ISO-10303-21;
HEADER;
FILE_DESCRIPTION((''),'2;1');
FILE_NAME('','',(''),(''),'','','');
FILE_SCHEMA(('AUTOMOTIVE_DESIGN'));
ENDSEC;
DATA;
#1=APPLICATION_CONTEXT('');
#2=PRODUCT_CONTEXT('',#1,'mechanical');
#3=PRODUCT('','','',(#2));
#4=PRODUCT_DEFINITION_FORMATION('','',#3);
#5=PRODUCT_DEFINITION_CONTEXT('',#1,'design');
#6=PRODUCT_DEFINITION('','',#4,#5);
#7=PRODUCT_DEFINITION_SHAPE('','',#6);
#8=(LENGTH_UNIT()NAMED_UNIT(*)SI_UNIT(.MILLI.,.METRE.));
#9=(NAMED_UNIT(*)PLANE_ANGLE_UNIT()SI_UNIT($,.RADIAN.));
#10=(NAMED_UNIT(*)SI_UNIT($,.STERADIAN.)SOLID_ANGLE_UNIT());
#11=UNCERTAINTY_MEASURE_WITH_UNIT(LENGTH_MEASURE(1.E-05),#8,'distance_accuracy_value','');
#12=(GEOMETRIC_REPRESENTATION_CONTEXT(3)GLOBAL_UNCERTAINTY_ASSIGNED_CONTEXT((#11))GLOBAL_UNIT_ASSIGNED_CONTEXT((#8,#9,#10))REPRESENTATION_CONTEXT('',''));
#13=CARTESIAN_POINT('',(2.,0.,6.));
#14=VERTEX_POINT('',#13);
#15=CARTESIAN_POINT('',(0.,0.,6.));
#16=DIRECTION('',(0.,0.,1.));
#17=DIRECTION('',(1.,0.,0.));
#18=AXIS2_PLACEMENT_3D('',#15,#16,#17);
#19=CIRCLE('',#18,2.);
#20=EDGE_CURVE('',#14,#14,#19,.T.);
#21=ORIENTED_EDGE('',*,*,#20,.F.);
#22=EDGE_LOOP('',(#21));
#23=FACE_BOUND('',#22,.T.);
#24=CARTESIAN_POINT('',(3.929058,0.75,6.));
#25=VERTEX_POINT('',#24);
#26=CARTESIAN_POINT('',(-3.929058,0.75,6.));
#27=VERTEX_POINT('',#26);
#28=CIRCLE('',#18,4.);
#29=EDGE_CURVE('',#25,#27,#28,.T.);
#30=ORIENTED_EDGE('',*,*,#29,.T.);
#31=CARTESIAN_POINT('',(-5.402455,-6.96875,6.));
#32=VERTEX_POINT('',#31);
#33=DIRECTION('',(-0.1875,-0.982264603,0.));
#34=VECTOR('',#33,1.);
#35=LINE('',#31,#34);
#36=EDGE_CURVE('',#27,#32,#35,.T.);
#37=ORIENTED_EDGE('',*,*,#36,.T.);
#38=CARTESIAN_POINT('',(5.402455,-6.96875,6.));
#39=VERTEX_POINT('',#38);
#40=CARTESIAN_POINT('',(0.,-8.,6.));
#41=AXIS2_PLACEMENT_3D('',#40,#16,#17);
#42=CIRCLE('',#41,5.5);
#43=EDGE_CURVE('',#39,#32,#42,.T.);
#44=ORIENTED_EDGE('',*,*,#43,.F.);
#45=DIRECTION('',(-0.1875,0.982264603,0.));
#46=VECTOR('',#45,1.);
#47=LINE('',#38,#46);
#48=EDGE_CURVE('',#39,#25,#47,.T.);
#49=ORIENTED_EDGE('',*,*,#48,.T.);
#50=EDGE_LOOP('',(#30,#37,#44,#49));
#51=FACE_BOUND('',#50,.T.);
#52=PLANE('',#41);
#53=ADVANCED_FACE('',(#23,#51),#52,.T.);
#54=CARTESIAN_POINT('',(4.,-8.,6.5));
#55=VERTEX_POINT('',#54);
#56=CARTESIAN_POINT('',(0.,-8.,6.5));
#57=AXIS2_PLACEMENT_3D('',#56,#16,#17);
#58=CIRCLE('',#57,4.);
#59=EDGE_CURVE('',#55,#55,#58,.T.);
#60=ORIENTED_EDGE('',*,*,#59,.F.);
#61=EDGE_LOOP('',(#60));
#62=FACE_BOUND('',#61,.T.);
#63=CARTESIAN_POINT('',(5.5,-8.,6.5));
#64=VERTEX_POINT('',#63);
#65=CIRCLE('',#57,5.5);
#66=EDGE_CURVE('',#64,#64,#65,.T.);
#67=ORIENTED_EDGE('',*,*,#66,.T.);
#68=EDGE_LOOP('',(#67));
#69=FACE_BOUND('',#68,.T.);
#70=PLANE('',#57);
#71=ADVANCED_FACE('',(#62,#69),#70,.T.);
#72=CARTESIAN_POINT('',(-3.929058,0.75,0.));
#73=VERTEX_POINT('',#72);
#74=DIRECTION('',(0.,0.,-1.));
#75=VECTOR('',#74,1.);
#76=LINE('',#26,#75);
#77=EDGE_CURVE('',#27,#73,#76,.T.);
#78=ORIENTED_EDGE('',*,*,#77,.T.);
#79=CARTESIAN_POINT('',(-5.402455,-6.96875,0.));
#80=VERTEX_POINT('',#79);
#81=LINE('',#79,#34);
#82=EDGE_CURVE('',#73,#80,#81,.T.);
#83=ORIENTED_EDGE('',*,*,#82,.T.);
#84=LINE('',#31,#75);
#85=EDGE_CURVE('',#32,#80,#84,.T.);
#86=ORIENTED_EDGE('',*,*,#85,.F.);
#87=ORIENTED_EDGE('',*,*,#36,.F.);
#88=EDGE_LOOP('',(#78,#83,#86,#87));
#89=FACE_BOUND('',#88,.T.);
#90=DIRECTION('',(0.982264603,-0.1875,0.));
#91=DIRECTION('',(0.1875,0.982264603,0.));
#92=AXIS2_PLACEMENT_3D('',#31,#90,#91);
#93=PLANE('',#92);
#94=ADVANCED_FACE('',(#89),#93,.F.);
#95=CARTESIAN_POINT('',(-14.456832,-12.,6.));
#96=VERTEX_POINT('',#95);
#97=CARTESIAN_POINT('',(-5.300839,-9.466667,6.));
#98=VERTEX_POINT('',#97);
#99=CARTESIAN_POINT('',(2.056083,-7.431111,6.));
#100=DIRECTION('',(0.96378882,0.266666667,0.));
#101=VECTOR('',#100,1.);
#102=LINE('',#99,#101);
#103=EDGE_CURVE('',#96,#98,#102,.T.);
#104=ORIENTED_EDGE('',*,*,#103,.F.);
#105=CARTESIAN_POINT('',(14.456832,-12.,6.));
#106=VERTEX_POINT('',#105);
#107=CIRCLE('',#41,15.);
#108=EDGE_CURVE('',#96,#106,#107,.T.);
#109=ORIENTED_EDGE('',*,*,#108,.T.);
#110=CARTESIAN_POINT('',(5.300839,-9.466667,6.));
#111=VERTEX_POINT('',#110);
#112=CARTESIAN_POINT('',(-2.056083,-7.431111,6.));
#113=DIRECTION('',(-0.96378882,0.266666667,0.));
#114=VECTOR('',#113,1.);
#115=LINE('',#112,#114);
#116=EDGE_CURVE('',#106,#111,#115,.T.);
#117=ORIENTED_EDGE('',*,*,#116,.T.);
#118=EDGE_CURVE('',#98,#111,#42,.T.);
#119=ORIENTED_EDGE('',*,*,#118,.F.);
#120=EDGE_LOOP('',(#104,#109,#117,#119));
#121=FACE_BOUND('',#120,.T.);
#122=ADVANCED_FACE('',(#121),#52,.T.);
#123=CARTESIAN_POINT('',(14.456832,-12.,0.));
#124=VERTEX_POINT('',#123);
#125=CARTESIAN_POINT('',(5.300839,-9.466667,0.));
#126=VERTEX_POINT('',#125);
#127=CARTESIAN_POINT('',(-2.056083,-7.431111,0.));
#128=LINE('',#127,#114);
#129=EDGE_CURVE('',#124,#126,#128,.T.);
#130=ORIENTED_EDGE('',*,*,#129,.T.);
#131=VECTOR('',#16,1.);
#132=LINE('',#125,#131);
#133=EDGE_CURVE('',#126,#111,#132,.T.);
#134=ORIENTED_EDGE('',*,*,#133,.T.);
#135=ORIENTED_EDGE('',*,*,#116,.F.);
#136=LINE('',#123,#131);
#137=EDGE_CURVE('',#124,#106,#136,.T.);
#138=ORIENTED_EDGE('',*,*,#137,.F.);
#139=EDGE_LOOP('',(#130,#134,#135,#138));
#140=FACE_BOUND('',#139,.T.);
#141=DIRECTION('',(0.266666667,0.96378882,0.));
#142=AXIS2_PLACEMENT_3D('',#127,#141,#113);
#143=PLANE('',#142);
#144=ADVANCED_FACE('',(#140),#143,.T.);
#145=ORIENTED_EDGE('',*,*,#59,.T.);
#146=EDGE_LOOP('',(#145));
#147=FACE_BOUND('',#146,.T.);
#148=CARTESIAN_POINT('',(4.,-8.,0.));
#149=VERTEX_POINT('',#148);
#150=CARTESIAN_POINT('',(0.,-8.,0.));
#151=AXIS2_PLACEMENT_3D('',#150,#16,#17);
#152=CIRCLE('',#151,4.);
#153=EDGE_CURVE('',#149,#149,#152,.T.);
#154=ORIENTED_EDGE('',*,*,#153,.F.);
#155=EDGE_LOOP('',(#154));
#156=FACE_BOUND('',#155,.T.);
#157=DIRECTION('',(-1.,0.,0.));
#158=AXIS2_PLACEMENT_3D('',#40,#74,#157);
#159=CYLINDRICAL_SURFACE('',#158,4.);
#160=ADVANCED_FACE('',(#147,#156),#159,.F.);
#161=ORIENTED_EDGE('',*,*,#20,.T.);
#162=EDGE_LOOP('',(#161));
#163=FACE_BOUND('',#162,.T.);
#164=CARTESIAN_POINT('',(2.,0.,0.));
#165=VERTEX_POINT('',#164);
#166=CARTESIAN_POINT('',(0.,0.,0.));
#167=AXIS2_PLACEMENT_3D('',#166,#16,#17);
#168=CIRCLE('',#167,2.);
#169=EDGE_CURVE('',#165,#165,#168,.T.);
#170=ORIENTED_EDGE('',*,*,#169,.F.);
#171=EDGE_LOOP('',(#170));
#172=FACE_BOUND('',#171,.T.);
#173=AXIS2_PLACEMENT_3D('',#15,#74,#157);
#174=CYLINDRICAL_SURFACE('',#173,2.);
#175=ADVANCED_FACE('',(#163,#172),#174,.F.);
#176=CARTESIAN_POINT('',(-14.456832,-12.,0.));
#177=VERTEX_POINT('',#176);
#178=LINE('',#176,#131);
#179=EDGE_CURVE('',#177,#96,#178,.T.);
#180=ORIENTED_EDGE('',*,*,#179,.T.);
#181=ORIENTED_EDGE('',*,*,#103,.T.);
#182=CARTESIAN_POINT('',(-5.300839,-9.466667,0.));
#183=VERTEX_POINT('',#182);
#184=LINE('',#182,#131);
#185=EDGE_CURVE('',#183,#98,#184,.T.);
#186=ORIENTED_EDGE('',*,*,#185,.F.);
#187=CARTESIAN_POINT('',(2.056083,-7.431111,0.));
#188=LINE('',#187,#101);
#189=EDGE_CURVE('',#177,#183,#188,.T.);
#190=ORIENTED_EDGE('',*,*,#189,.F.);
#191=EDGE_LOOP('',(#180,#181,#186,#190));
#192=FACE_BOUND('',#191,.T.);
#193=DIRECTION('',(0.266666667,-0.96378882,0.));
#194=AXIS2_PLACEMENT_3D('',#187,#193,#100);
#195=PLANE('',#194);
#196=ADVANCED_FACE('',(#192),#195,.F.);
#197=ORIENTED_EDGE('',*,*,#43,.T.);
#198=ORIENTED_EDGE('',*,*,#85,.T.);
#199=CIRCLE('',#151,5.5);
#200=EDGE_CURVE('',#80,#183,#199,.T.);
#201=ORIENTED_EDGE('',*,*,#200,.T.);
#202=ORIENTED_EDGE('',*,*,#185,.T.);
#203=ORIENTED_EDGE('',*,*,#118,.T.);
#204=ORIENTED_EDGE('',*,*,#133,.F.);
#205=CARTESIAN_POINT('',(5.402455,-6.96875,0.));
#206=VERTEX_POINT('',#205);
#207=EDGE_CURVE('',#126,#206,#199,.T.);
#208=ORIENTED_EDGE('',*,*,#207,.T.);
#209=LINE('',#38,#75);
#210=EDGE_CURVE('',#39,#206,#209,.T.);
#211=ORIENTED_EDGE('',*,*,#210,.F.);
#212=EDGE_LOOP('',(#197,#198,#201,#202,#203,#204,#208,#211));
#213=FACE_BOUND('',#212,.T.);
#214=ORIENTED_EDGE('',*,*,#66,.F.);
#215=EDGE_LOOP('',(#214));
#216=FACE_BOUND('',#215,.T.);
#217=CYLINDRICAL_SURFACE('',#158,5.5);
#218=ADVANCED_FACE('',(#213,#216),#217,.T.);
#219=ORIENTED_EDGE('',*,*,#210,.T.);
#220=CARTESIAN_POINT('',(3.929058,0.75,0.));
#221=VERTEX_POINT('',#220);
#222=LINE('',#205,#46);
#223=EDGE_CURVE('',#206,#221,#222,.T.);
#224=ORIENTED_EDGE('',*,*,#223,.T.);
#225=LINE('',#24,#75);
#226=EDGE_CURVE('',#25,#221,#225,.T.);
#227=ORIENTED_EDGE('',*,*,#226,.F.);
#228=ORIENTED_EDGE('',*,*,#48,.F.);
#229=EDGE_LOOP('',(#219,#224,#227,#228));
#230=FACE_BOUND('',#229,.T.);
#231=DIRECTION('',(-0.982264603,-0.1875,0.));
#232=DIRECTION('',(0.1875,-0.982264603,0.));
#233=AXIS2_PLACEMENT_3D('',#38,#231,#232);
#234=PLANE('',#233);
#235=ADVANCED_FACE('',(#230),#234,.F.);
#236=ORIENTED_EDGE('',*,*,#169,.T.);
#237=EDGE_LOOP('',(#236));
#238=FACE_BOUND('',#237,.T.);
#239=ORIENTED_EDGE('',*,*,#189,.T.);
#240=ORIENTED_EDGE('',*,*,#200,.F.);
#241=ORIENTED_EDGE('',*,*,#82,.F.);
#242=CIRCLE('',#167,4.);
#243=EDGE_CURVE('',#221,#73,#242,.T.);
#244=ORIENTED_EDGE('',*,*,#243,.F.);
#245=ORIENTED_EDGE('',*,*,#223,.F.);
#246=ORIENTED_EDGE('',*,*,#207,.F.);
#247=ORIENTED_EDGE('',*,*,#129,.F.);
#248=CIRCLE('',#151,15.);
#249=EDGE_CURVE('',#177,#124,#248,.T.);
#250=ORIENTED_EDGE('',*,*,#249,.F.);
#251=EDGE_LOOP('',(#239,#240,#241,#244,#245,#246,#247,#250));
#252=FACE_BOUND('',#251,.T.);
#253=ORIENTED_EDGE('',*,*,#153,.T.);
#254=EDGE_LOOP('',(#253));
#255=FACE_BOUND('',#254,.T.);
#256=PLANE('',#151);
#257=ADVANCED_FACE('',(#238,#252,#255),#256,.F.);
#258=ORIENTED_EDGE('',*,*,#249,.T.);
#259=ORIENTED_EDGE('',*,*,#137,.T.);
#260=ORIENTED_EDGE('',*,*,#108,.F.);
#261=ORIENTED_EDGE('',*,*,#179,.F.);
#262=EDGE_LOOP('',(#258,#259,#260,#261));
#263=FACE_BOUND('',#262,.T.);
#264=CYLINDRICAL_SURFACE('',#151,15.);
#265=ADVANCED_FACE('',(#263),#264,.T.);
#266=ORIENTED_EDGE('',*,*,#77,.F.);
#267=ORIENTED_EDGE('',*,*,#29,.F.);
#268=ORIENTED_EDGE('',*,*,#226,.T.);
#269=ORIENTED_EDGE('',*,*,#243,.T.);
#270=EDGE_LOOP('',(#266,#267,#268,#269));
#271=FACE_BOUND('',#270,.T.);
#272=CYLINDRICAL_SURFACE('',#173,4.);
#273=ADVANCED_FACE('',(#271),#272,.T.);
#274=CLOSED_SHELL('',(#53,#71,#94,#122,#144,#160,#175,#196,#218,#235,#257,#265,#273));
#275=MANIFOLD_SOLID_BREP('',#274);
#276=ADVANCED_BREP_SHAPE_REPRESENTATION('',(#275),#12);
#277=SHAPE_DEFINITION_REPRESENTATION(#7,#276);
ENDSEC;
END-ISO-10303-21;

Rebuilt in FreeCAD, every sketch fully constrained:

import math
import FreeCAD as App
import Part
import Sketcher

V = App.Vector

doc = App.newDocument("Part")
body = doc.addObject("PartDesign::Body", "Body")

# Sketch on XY plane
sketch1 = doc.addObject("Sketcher::SketchObject", "Sketch")
body.addObject(sketch1)
sketch1.AttachmentSupport = (doc.XY_Plane, [""])
sketch1.MapMode = "FlatFace"
sketch1.addGeometry([
    Part.LineSegment(V(-3.929058, 0.75, 0), V(-5.402455, -6.96875, 0)),  # 0
    Part.ArcOfCircle(Part.Circle(V(0, -8, 0), V(0, 0, 1), 5.5), math.radians(169.193077), math.radians(370.806923)),  # 1
    Part.LineSegment(V(5.402455, -6.96875, 0), V(3.929058, 0.75, 0)),  # 2
    Part.ArcOfCircle(Part.Circle(V(0, 0, 0), V(0, 0, 1), 4), math.radians(10.806923), math.radians(169.193077)),  # 3
    Part.Circle(V(0, -8, 0), V(0, 0, 1), 4),  # 4
    Part.Circle(V(0, 0, 0), V(0, 0, 1), 2),  # 5
], False)
sketch1.addConstraint([
    Sketcher.Constraint("Tangent", 0, 2, 1, 1),
    Sketcher.Constraint("Tangent", 1, 2, 2, 1),
    Sketcher.Constraint("Tangent", 2, 2, 3, 1),
    Sketcher.Constraint("Tangent", 3, 2, 0, 1),
    Sketcher.Constraint("Coincident", 3, 3, -1, 1),
    Sketcher.Constraint("Coincident", 5, 3, -1, 1),
    Sketcher.Constraint("Coincident", 4, 3, 1, 3),
    Sketcher.Constraint("Equal", 3, 4),
    Sketcher.Constraint("PointOnObject", 1, 3, -2),
    Sketcher.Constraint("Diameter", 4, 8.0),
    Sketcher.Constraint("Diameter", 5, 4.0),
    Sketcher.Constraint("Radius", 1, 5.5),
    Sketcher.Constraint("DistanceY", 1, 3, -1, 1, 8.0),
])
pad1 = doc.addObject("PartDesign::Pad", "Pad")
body.addObject(pad1)
pad1.Profile = sketch1
pad1.Length = 6

# Sketch on XY plane
sketch2 = doc.addObject("Sketcher::SketchObject", "Sketch001")
body.addObject(sketch2)
sketch2.AttachmentSupport = (doc.XY_Plane, [""])
sketch2.MapMode = "FlatFace"
sketch2.addGeometry([
    Part.ArcOfCircle(Part.Circle(V(0, -8, 0), V(0, 0, 1), 15), math.radians(-90), math.radians(-15.46601)),  # 0
    Part.LineSegment(V(14.456832, -12, 0), V(5.300839, -9.466667, 0)),  # 1
    Part.ArcOfCircle(Part.Circle(V(0, -8, 0), V(0, 0, 1), 5.5), math.radians(-90), math.radians(-15.46601)),  # 2
    Part.ArcOfCircle(Part.Circle(V(0, -8, 0), V(0, 0, 1), 5.5), math.radians(-164.53399), math.radians(-90)),  # 3
    Part.LineSegment(V(-5.300839, -9.466667, 0), V(-14.456832, -12, 0)),  # 4
    Part.ArcOfCircle(Part.Circle(V(0, -8, 0), V(0, 0, 1), 15), math.radians(-164.53399), math.radians(-90)),  # 5
], False)
sketch2.addConstraint([
    Sketcher.Constraint("Coincident", 0, 2, 1, 1),
    Sketcher.Constraint("Coincident", 1, 2, 2, 2),
    Sketcher.Constraint("Tangent", 2, 1, 3, 2),
    Sketcher.Constraint("Coincident", 3, 1, 4, 1),
    Sketcher.Constraint("Coincident", 4, 2, 5, 1),
    Sketcher.Constraint("Tangent", 5, 2, 0, 1),
    Sketcher.Constraint("Coincident", 2, 3, 0, 3),
    Sketcher.Constraint("Equal", 2, 3),
    Sketcher.Constraint("Equal", 0, 5),
    Sketcher.Constraint("Symmetric", 1, 2, 3, 1, -2),
    Sketcher.Constraint("PointOnObject", 2, 1, -2),
    Sketcher.Constraint("PointOnObject", 5, 2, -2),
    Sketcher.Constraint("Horizontal", 0, 2, 4, 2),
    Sketcher.Constraint("Radius", 0, 15.0),
    Sketcher.Constraint("Radius", 2, 5.5),
    Sketcher.Constraint("DistanceY", 0, 3, -1, 1, 8.0),
    Sketcher.Constraint("DistanceY", 0, 2, -1, 1, 12.0),
    Sketcher.Constraint("DistanceX", -1, 1, 1, 2, 5.300839),
])
pad2 = doc.addObject("PartDesign::Pad", "Pad001")
body.addObject(pad2)
pad2.Profile = sketch2
pad2.Length = 6

# Sketch on XY plane
sketch3 = doc.addObject("Sketcher::SketchObject", "Sketch002")
body.addObject(sketch3)
sketch3.AttachmentSupport = (doc.XY_Plane, [""])
sketch3.MapMode = "FlatFace"
sketch3.AttachmentOffset = App.Placement(V(0, 0, 6), App.Rotation())
sketch3.addGeometry([
    Part.Circle(V(0, -8, 0), V(0, 0, 1), 5.5),
    Part.Circle(V(0, -8, 0), V(0, 0, 1), 4),
], False)
sketch3.addConstraint([
    Sketcher.Constraint("Coincident", 1, 3, 0, 3),
    Sketcher.Constraint("PointOnObject", 0, 3, -2),
    Sketcher.Constraint("Diameter", 0, 11.0),
    Sketcher.Constraint("Diameter", 1, 8.0),
    Sketcher.Constraint("DistanceY", 0, 3, -1, 1, 8.0),
])
pad3 = doc.addObject("PartDesign::Pad", "Pad002")
body.addObject(pad3)
pad3.Profile = sketch3
pad3.Length = 0.5

doc.recompute()
